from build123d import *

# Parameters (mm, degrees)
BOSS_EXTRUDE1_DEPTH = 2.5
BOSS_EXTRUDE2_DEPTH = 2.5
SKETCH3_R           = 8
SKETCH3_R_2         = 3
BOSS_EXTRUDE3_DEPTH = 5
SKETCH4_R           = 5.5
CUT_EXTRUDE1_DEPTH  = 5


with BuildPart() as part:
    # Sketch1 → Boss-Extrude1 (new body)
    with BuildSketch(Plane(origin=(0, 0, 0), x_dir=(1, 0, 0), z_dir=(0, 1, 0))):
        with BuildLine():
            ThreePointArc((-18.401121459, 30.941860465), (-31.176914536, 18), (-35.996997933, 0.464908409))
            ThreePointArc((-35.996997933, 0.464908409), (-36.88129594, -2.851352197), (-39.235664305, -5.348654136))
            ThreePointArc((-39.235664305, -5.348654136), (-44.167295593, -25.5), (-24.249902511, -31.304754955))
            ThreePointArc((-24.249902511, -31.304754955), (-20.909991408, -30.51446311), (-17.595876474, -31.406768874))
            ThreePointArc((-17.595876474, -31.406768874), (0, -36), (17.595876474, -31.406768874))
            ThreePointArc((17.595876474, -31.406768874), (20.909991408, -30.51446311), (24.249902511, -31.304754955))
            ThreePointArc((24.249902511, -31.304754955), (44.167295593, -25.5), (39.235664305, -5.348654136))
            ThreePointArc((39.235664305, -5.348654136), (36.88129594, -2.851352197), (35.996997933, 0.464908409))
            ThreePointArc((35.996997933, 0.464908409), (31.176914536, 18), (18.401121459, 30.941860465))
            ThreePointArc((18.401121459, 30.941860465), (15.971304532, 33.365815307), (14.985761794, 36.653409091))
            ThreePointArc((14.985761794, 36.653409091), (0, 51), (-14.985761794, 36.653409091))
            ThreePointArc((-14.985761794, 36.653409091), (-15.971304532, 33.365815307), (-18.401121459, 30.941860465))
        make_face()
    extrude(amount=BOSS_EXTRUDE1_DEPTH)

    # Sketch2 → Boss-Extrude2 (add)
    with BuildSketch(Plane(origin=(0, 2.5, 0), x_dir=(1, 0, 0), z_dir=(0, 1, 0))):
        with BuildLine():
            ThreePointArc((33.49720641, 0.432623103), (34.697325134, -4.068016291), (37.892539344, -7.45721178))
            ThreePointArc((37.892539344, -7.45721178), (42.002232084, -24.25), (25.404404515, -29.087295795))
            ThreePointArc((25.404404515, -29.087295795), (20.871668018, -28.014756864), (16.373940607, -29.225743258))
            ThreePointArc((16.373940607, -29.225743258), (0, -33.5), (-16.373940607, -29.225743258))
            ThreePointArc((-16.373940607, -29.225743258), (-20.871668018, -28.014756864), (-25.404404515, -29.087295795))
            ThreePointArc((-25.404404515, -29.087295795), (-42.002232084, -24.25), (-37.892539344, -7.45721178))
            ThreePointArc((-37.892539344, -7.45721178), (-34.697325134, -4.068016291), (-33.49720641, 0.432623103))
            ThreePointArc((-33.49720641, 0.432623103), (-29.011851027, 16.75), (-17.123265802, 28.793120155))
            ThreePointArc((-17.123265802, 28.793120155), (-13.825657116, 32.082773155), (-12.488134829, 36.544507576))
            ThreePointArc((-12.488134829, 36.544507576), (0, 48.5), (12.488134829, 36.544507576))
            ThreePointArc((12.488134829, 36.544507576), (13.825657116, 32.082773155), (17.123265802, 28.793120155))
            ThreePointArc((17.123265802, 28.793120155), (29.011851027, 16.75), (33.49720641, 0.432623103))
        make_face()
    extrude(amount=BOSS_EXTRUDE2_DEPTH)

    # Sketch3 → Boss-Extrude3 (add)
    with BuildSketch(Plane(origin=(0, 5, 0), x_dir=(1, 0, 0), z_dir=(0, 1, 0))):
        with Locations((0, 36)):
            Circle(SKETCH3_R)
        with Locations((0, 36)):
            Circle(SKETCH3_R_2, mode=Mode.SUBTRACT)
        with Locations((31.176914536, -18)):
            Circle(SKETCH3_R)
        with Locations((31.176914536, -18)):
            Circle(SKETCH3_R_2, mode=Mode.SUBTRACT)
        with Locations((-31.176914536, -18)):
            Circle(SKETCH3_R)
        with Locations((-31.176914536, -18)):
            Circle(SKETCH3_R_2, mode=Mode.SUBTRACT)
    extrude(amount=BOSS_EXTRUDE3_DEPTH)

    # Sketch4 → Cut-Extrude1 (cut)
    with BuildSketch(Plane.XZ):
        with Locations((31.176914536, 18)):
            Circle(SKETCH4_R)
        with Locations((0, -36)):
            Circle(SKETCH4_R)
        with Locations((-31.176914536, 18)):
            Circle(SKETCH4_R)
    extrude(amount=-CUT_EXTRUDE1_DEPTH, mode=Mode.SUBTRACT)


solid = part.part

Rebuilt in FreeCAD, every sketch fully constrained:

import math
import FreeCAD as App
import Part
import Sketcher

V = App.Vector

doc = App.newDocument("Part")
body = doc.addObject("PartDesign::Body", "Body")

# Sketch on XZ plane
sketch1 = body.newObject("Sketcher::SketchObject", "Sketch")
sketch1.AttachmentSupport = (doc.getObject("XZ_Plane"), [""])
sketch1.MapMode = "FlatFace"
sketch1.addGeometry([
    Part.ArcOfCircle(Part.Circle(V(0, 0, 0), V(0, 0, 1), 36), math.radians(-179.260055), math.radians(-120.739945)),  # 0
    Part.ArcOfCircle(Part.Circle(V(-42.996414, -0.555307, 0), V(0, 0, 1), 7), math.radians(0.739945), math.radians(57.503371)),  # 1
    Part.ArcOfCircle(Part.Circle(V(-31.176915, 18, 0), V(0, 0, 1), 15), math.radians(62.496629), math.radians(237.503371)),  # 2
    Part.ArcOfCircle(Part.Circle(V(-21.017297, 37.513641, 0), V(0, 0, 1), 7), math.radians(-117.503371), math.radians(-60.739945)),  # 3
    Part.ArcOfCircle(Part.Circle(V(0, 0, 0), V(0, 0, 1), 36), math.radians(60.739945), math.radians(119.260055)),  # 4
    Part.ArcOfCircle(Part.Circle(V(21.017297, 37.513641, 0), V(0, 0, 1), 7), math.radians(-119.260055), math.radians(-62.496629)),  # 5
    Part.ArcOfCircle(Part.Circle(V(31.176915, 18, 0), V(0, 0, 1), 15), math.radians(-57.503371), math.radians(117.503371)),  # 6
    Part.ArcOfCircle(Part.Circle(V(42.996414, -0.555307, 0), V(0, 0, 1), 7), math.radians(122.496629), math.radians(179.260055)),  # 7
    Part.ArcOfCircle(Part.Circle(V(0, 0, 0), V(0, 0, 1), 36), math.radians(-59.260055), math.radians(-0.739945)),  # 8
    Part.ArcOfCircle(Part.Circle(V(21.979117, -36.958333, 0), V(0, 0, 1), 7), math.radians(120.739945), math.radians(177.503371)),  # 9
    Part.ArcOfCircle(Part.Circle(V(0, -36, 0), V(0, 0, 1), 15), math.radians(-177.503371), math.radians(-2.496629)),  # 10
    Part.ArcOfCircle(Part.Circle(V(-21.979117, -36.958333, 0), V(0, 0, 1), 7), math.radians(2.496629), math.radians(59.260055)),  # 11
], False)
sketch1.addConstraint([
    Sketcher.Constraint("Tangent", 0, 1, 1, 1),
    Sketcher.Constraint("Tangent", 1, 2, 2, 2),
    Sketcher.Constraint("Tangent", 2, 1, 3, 1),
    Sketcher.Constraint("Tangent", 3, 2, 4, 2),
    Sketcher.Constraint("Tangent", 4, 1, 5, 1),
    Sketcher.Constraint("Tangent", 5, 2, 6, 2),
    Sketcher.Constraint("Tangent", 6, 1, 7, 1),
    Sketcher.Constraint("Tangent", 7, 2, 8, 2),
    Sketcher.Constraint("Tangent", 8, 1, 9, 1),
    Sketcher.Constraint("Tangent", 9, 2, 10, 2),
    Sketcher.Constraint("Tangent", 10, 1, 11, 1),
    Sketcher.Constraint("Tangent", 11, 2, 0, 2),
    Sketcher.Constraint("Coincident", 0, 3, -1, 1),
    Sketcher.Constraint("Coincident", 4, 3, -1, 1),
    Sketcher.Constraint("Coincident", 8, 3, -1, 1),
    Sketcher.Constraint("Equal", 1, 3),
    Sketcher.Constraint("Equal", 0, 4),
    Sketcher.Constraint("Equal", 3, 5),
    Sketcher.Constraint("Equal", 2, 6),
    Sketcher.Constraint("Equal", 5, 7),
    Sketcher.Constraint("Equal", 4, 8),
    Sketcher.Constraint("Equal", 7, 9),
    Sketcher.Constraint("Equal", 6, 10),
    Sketcher.Constraint("Equal", 9, 11),
    Sketcher.Constraint("Symmetric", 2, 3, 6, 3, -2),
    Sketcher.Constraint("PointOnObject", 10, 3, -2),
    Sketcher.Constraint("Radius", 0, 36.0),
    Sketcher.Constraint("Radius", 1, 7.0),
    Sketcher.Constraint("Radius", 2, 15.0),
    Sketcher.Constraint("DistanceY", -1, 1, 2, 3, 18.0),
    Sketcher.Constraint("DistanceY", 10, 3, -1, 1, 36.0),
    Sketcher.Constraint("DistanceX", 1, 3, 2, 3, 11.8195),
])
pad1 = body.newObject("PartDesign::Pad", "Pad")
pad1.Profile = sketch1
pad1.Length = 2.5
pad1.Reversed = True

# Sketch on XZ plane
sketch2 = body.newObject("Sketcher::SketchObject", "Sketch001")
sketch2.AttachmentSupport = (doc.getObject("XZ_Plane"), [""])
sketch2.MapMode = "FlatFace"
sketch2.AttachmentOffset = App.Placement(V(0, 0, -2.5), App.Rotation())
sketch2.addGeometry([
    Part.ArcOfCircle(Part.Circle(V(42.996414, -0.555307, 0), V(0, 0, 1), 9.5), math.radians(122.496629), math.radians(179.260055)),  # 0
    Part.ArcOfCircle(Part.Circle(V(0, 0, 0), V(0, 0, 1), 33.5), math.radians(-59.260055), math.radians(-0.739945)),  # 1
    Part.ArcOfCircle(Part.Circle(V(21.979117, -36.958333, 0), V(0, 0, 1), 9.5), math.radians(120.739945), math.radians(177.503371)),  # 2
    Part.ArcOfCircle(Part.Circle(V(0, -36, 0), V(0, 0, 1), 12.5), math.radians(-177.503371), math.radians(-2.496629)),  # 3
    Part.ArcOfCircle(Part.Circle(V(-21.979117, -36.958333, 0), V(0, 0, 1), 9.5), math.radians(2.496629), math.radians(59.260055)),  # 4
    Part.ArcOfCircle(Part.Circle(V(0, 0, 0), V(0, 0, 1), 33.5), math.radians(-179.260055), math.radians(-120.739945)),  # 5
    Part.ArcOfCircle(Part.Circle(V(-42.996414, -0.555307, 0), V(0, 0, 1), 9.5), math.radians(0.739945), math.radians(57.503371)),  # 6
    Part.ArcOfCircle(Part.Circle(V(-31.176915, 18, 0), V(0, 0, 1), 12.5), math.radians(62.496629), math.radians(237.503371)),  # 7
    Part.ArcOfCircle(Part.Circle(V(-21.017297, 37.513641, 0), V(0, 0, 1), 9.5), math.radians(-117.503371), math.radians(-60.739945)),  # 8
    Part.ArcOfCircle(Part.Circle(V(0, 0, 0), V(0, 0, 1), 33.5), math.radians(60.739945), math.radians(119.260055)),  # 9
    Part.ArcOfCircle(Part.Circle(V(21.017297, 37.513641, 0), V(0, 0, 1), 9.5), math.radians(-119.260055), math.radians(-62.496629)),  # 10
    Part.ArcOfCircle(Part.Circle(V(31.176915, 18, 0), V(0, 0, 1), 12.5), math.radians(-57.503371), math.radians(117.503371)),  # 11
], False)
sketch2.addConstraint([
    Sketcher.Constraint("Tangent", 0, 2, 1, 2),
    Sketcher.Constraint("Tangent", 1, 1, 2, 1),
    Sketcher.Constraint("Tangent", 2, 2, 3, 2),
    Sketcher.Constraint("Tangent", 3, 1, 4, 1),
    Sketcher.Constraint("Tangent", 4, 2, 5, 2),
    Sketcher.Constraint("Tangent", 5, 1, 6, 1),
    Sketcher.Constraint("Tangent", 6, 2, 7, 2),
    Sketcher.Constraint("Tangent", 7, 1, 8, 1),
    Sketcher.Constraint("Tangent", 8, 2, 9, 2),
    Sketcher.Constraint("Tangent", 9, 1, 10, 1),
    Sketcher.Constraint("Tangent", 10, 2, 11, 2),
    Sketcher.Constraint("Tangent", 11, 1, 0, 1),
    Sketcher.Constraint("Coincident", 1, 3, -1, 1),
    Sketcher.Constraint("Coincident", 5, 3, -1, 1),
    Sketcher.Constraint("Coincident", 9, 3, -1, 1),
    Sketcher.Constraint("Equal", 0, 2),
    Sketcher.Constraint("Equal", 2, 4),
    Sketcher.Constraint("Equal", 1, 5),
    Sketcher.Constraint("Equal", 4, 6),
    Sketcher.Constraint("Equal", 3, 7),
    Sketcher.Constraint("Equal", 6, 8),
    Sketcher.Constraint("Equal", 5, 9),
    Sketcher.Constraint("Equal", 8, 10),
    Sketcher.Constraint("Equal", 7, 11),
    Sketcher.Constraint("Symmetric", 7, 3, 11, 3, -2),
    Sketcher.Constraint("PointOnObject", 3, 3, -2),
    Sketcher.Constraint("Radius", 0, 9.5),
    Sketcher.Constraint("Radius", 1, 33.5),
    Sketcher.Constraint("Radius", 3, 12.5),
    Sketcher.Constraint("DistanceY", 3, 3, -1, 1, 36.0),
    Sketcher.Constraint("DistanceY", -1, 1, 7, 3, 18.0),
    Sketcher.Constraint("DistanceX", 6, 3, 7, 3, 11.8195),
])
pad2 = body.newObject("PartDesign::Pad", "Pad001")
pad2.Profile = sketch2
pad2.Length = 2.5
pad2.Reversed = True

# Sketch on XZ plane
sketch3 = body.newObject("Sketcher::SketchObject", "Sketch002")
sketch3.AttachmentSupport = (doc.getObject("XZ_Plane"), [""])
sketch3.MapMode = "FlatFace"
sketch3.AttachmentOffset = App.Placement(V(0, 0, -5), App.Rotation())
sketch3.addGeometry([
    Part.Circle(V(0, -36, 0), V(0, 0, 1), 8),  # 0
    Part.Circle(V(0, -36, 0), V(0, 0, 1), 3),  # 1
    Part.Circle(V(31.176915, 18, 0), V(0, 0, 1), 8),  # 2
    Part.Circle(V(31.176915, 18, 0), V(0, 0, 1), 3),  # 3
    Part.Circle(V(-31.176915, 18, 0), V(0, 0, 1), 8),  # 4
    Part.Circle(V(-31.176915, 18, 0), V(0, 0, 1), 3),  # 5
], False)
sketch3.addConstraint([
    Sketcher.Constraint("Coincident", 1, 3, 0, 3),
    Sketcher.Constraint("Coincident", 3, 3, 2, 3),
    Sketcher.Constraint("Coincident", 5, 3, 4, 3),
    Sketcher.Constraint("Equal", 0, 2),
    Sketcher.Constraint("Equal", 1, 3),
    Sketcher.Constraint("Equal", 2, 4),
    Sketcher.Constraint("Equal", 3, 5),
    Sketcher.Constraint("Symmetric", 2, 3, 4, 3, -2),
    Sketcher.Constraint("PointOnObject", 0, 3, -2),
    Sketcher.Constraint("Diameter", 0, 16.0),
    Sketcher.Constraint("Diameter", 1, 6.0),
    Sketcher.Constraint("DistanceY", 0, 3, -1, 1, 36.0),
    Sketcher.Constraint("DistanceY", -1, 1, 2, 3, 18.0),
    Sketcher.Constraint("DistanceX", 4, 3, 2, 3, 62.353829),
])
pad3 = body.newObject("PartDesign::Pad", "Pad002")
pad3.Profile = sketch3
pad3.Length = 5
pad3.Reversed = True

# Sketch on XZ plane
sketch4 = body.newObject("Sketcher::SketchObject", "Sketch003")
sketch4.AttachmentSupport = (doc.getObject("XZ_Plane"), [""])
sketch4.MapMode = "FlatFace"
sketch4.addGeometry([
    Part.Circle(V(31.176915, 18, 0), V(0, 0, 1), 5.5),
    Part.Circle(V(0, -36, 0), V(0, 0, 1), 5.5),
    Part.Circle(V(-31.176915, 18, 0), V(0, 0, 1), 5.5),
], False)
sketch4.addConstraint([
    Sketcher.Constraint("Equal", 0, 1),
    Sketcher.Constraint("Equal", 1, 2),
    Sketcher.Constraint("Symmetric", 0, 3, 2, 3, -2),
    Sketcher.Constraint("PointOnObject", 1, 3, -2),
    Sketcher.Constraint("Diameter", 0, 11.0),
    Sketcher.Constraint("DistanceY", -1, 1, 0, 3, 18.0),
    Sketcher.Constraint("DistanceY", 1, 3, -1, 1, 36.0),
    Sketcher.Constraint("DistanceX", 2, 3, 0, 3, 62.353829),
])
pocket1 = body.newObject("PartDesign::Pocket", "Pocket")
pocket1.Profile = sketch4
pocket1.Length = 5

doc.recompute()
